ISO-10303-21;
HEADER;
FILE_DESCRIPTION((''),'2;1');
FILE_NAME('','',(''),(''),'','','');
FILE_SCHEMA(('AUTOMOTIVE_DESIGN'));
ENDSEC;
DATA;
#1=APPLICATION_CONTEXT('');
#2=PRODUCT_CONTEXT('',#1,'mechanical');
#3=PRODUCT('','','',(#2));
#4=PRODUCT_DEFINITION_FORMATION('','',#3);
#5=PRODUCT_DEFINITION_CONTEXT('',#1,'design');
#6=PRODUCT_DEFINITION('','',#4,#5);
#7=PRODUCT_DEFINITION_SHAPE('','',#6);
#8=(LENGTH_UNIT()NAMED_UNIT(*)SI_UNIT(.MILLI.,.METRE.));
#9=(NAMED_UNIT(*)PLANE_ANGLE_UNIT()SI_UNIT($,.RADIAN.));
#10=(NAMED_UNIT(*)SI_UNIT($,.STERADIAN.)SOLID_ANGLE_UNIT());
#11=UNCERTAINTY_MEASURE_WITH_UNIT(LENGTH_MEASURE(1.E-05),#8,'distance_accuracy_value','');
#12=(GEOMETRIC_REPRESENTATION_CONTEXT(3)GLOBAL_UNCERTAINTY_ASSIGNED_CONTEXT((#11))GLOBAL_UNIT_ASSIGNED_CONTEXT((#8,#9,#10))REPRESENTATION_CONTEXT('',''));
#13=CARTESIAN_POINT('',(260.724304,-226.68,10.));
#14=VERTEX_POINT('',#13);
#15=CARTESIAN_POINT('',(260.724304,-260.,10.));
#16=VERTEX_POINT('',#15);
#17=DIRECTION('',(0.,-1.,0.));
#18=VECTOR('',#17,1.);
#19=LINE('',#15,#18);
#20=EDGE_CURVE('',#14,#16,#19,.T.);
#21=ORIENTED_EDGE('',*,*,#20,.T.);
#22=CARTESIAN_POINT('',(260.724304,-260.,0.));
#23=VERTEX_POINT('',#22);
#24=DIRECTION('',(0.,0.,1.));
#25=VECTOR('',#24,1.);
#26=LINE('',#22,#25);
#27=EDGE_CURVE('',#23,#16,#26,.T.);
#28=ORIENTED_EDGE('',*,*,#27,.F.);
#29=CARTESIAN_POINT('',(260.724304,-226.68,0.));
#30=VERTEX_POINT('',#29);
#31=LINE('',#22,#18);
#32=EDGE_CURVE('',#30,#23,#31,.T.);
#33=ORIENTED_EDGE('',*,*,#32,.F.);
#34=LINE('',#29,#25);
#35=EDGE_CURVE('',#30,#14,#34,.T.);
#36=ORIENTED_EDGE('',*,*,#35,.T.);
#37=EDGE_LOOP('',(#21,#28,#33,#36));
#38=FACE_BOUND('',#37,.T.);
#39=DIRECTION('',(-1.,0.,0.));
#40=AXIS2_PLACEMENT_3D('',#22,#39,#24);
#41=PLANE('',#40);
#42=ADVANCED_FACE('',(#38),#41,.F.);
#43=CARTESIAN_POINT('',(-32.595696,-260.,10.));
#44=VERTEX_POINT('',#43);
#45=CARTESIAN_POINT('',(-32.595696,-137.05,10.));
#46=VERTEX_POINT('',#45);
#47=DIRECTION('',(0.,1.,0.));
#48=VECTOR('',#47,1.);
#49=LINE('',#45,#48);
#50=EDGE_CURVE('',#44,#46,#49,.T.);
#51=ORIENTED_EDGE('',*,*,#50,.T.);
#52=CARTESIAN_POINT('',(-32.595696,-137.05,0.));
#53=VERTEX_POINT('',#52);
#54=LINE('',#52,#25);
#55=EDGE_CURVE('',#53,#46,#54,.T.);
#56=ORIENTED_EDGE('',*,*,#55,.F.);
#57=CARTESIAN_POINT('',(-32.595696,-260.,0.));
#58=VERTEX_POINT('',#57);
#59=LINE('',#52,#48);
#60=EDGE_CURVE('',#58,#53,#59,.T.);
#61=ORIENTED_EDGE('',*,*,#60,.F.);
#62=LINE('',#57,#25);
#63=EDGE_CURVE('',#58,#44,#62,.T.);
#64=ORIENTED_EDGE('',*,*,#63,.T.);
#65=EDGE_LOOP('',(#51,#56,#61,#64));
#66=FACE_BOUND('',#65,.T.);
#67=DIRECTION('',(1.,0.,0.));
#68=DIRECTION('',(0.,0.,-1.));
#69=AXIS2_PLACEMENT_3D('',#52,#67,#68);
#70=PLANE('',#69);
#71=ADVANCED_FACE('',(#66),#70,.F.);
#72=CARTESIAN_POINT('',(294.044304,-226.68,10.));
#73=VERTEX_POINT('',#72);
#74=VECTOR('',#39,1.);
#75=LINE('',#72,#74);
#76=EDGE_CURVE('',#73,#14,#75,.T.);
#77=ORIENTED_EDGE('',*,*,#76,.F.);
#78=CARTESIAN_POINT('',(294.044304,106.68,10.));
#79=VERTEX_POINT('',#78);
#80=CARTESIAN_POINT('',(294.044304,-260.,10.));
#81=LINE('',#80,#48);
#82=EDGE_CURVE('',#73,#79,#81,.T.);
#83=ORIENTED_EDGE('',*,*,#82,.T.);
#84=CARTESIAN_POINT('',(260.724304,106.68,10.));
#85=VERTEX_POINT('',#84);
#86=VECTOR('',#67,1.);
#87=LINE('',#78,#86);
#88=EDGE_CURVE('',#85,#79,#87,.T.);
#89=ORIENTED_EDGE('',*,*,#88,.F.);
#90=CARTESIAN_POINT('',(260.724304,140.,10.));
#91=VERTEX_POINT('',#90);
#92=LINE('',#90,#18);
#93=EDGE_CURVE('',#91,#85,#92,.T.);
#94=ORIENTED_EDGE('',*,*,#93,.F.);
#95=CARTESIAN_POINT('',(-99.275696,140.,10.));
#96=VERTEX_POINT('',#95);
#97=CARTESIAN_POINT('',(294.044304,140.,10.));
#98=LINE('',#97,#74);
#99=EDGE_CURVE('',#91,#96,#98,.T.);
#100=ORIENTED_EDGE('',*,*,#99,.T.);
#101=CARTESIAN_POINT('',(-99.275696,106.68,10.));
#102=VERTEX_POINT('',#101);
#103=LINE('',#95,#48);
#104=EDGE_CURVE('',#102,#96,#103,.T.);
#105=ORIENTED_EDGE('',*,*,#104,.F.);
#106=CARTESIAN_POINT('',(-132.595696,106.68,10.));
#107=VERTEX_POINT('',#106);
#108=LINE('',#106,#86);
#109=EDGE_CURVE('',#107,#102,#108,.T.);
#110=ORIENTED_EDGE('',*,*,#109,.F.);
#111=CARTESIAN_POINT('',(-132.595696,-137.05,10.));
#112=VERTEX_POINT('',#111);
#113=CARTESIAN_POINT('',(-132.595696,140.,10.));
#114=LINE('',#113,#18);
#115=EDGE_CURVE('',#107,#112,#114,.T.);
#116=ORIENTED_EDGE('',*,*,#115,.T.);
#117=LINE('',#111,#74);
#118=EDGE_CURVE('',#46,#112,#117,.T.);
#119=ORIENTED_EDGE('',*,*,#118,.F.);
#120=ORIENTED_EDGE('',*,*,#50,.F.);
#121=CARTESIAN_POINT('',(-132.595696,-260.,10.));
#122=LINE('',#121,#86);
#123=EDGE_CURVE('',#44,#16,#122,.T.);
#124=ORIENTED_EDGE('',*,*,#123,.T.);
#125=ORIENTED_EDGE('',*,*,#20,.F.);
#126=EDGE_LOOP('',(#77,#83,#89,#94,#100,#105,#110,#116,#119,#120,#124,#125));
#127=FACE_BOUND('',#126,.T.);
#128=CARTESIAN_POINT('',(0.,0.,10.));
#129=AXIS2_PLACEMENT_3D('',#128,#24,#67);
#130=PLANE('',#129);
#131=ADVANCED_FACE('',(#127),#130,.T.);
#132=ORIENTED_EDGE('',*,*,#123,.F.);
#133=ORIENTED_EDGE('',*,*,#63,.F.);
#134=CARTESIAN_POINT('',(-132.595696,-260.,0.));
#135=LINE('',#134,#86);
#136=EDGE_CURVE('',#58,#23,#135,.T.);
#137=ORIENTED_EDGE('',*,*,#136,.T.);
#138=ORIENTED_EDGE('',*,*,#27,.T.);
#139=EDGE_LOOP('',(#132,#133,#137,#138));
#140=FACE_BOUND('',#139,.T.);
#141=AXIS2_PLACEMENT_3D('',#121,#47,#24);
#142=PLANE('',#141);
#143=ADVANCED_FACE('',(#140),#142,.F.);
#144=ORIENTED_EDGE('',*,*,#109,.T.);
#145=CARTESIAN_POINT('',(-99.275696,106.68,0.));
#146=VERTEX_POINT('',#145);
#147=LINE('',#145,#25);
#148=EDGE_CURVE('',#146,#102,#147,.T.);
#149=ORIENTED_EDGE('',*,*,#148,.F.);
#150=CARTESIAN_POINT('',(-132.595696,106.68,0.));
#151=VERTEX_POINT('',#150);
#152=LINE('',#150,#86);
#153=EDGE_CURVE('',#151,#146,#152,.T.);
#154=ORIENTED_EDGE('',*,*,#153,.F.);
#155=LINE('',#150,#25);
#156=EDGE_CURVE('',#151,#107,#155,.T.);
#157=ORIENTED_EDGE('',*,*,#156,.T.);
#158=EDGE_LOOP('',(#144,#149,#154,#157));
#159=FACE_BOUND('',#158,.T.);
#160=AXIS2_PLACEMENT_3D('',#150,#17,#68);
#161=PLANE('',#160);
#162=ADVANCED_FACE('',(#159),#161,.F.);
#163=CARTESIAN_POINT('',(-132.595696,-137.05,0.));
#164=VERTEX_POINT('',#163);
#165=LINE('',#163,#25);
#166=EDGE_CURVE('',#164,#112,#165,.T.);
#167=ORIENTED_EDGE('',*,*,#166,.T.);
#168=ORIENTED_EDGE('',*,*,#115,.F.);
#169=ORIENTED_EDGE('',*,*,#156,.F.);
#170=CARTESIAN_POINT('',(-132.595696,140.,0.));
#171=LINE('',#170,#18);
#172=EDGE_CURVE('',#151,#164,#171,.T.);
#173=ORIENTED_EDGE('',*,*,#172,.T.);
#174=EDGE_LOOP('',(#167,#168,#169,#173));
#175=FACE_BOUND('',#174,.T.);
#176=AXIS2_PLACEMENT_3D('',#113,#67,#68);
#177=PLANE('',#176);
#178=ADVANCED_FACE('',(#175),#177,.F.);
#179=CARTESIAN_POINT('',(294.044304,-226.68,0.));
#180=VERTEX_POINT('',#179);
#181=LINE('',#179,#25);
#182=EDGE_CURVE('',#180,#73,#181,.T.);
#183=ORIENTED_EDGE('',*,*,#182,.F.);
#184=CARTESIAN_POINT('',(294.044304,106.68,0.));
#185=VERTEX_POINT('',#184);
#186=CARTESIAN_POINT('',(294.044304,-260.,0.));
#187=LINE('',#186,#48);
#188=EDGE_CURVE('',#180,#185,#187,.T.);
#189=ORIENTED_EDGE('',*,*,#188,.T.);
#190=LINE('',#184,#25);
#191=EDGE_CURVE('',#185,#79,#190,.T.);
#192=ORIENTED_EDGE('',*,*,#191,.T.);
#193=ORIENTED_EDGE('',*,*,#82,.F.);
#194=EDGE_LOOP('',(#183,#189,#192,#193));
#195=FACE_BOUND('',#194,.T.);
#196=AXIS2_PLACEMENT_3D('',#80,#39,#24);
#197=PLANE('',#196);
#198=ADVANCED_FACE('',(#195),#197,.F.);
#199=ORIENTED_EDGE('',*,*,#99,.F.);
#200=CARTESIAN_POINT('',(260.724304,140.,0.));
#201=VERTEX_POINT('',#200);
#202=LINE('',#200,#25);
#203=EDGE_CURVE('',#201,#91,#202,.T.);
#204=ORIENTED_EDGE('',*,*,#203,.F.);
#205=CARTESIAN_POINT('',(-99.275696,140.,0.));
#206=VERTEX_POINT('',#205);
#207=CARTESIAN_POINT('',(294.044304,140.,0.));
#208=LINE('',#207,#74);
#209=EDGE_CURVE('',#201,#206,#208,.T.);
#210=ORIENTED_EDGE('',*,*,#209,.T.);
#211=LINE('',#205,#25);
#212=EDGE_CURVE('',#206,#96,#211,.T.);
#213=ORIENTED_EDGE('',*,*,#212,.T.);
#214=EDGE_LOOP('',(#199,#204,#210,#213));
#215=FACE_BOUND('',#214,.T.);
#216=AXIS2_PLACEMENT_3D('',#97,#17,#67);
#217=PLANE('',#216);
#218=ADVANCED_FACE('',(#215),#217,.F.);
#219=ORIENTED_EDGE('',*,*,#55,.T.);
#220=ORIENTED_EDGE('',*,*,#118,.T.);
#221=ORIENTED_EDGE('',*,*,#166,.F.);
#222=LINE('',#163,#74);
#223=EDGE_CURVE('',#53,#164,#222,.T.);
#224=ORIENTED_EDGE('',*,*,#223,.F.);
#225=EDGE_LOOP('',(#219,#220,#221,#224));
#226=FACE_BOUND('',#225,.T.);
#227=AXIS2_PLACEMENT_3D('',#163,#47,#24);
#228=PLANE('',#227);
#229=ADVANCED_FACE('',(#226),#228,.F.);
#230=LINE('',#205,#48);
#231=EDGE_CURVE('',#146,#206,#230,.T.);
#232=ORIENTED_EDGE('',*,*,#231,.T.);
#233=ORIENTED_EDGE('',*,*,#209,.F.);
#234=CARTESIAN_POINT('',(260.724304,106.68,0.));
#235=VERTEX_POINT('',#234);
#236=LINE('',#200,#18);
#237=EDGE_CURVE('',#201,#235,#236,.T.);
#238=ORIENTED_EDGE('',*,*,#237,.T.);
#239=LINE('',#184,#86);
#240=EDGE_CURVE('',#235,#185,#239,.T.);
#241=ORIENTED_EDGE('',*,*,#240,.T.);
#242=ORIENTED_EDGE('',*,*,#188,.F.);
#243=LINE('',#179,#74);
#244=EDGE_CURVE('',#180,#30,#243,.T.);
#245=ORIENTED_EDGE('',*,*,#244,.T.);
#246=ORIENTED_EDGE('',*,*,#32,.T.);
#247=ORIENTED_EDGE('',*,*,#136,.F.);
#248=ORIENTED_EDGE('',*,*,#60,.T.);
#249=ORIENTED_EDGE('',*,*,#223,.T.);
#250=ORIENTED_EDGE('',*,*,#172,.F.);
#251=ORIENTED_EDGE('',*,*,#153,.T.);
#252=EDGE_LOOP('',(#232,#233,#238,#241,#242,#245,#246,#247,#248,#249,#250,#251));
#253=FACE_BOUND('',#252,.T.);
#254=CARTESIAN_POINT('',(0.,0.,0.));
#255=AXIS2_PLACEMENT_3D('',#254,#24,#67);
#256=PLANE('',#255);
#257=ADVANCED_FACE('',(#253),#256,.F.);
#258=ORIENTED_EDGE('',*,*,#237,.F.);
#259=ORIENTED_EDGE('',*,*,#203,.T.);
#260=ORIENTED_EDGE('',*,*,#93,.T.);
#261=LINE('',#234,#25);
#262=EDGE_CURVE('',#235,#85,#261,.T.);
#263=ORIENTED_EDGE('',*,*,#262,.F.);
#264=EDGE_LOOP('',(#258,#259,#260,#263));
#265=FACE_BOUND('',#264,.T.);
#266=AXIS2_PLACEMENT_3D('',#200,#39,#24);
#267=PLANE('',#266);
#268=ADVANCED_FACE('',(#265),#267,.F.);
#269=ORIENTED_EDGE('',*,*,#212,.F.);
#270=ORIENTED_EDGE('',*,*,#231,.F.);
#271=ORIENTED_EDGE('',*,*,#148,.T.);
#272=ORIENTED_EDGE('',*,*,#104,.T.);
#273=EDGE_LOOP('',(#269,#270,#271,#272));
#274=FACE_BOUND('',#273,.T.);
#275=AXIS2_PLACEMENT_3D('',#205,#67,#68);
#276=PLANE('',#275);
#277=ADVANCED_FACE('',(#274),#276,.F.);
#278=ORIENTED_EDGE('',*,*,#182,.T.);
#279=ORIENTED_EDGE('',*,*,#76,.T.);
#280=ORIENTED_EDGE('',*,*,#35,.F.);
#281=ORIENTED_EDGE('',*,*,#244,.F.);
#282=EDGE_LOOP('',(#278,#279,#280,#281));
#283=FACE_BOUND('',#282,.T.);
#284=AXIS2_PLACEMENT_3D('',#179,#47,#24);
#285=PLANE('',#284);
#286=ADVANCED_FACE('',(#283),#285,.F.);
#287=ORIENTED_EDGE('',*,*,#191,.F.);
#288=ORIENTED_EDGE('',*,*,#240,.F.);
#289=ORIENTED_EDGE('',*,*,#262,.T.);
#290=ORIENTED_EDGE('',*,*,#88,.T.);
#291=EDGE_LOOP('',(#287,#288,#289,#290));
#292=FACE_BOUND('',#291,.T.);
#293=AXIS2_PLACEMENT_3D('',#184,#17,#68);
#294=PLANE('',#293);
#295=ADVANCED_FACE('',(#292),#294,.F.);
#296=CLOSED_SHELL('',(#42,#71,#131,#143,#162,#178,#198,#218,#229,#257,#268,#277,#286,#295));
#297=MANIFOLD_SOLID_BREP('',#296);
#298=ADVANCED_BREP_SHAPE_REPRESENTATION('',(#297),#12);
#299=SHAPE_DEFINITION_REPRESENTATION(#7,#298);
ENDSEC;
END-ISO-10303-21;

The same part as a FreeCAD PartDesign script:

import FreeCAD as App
import Part
import Sketcher
from FreeCAD import Vector
Q = App.Units.Quantity


def add_polygon(sketch, points):
    """Adds a closed chain of lines whose ends are joined by coincident constraints."""
    first, n = sketch.GeometryCount, len(points)
    for a, b in zip(points, points[1:] + points[:1]):
        sketch.addGeometry(Part.LineSegment(App.Vector(*a, 0), App.Vector(*b, 0)), False)
    for i in range(n):
        sketch.addConstraint(Sketcher.Constraint("Coincident", first + i, 2, first + (i + 1) % n, 1))

doc = App.newDocument("Part")
body = doc.addObject("PartDesign::Body", "Body")

# Sketch on XY plane
sketch1 = body.newObject("Sketcher::SketchObject", "Sketch")
sketch1.AttachmentSupport = (doc.getObject("XY_Plane"), [""])
sketch1.MapMode = "FlatFace"
add_polygon(sketch1, [(-133, 140), (-133, -260), (294, -260), (294, 140)])  # lines 0-3
sketch1.addConstraint([
    Sketcher.Constraint("Vertical", 0),
    Sketcher.Constraint("Horizontal", 1),
    Sketcher.Constraint("Vertical", 2),
    Sketcher.Constraint("Horizontal", 3),
    Sketcher.Constraint("DistanceY", 0, 2, 0, 1, Q("400 mm")),
    Sketcher.Constraint("DistanceY", 0, 2, -1, 1, Q("260 mm")),
    Sketcher.Constraint("DistanceX", 1, 1, 1, 2, Q("426.64 mm")),
    Sketcher.Constraint("DistanceX", 0, 2, -1, 1, Q("132.595696 mm")),
])
pad1 = body.newObject("PartDesign::Pad", "Pad")
pad1.Profile = sketch1
pad1.Length = 10

# Sketch on XY plane
sketch2 = body.newObject("Sketcher::SketchObject", "Sketch001")
sketch2.AttachmentSupport = (doc.getObject("XY_Plane"), [""])
sketch2.MapMode = "FlatFace"
sketch2.AttachmentOffset = App.Placement(Vector(0, 0, 10), App.Rotation())
add_polygon(sketch2, [(-133, -227), (-133, -260), (-99, -260), (-99, -227)])  # lines 0-3
add_polygon(sketch2, [(-133, 140), (-133, 107), (-99, 107), (-99, 140)])  # lines 4-7
add_polygon(sketch2, [(261, 140), (261, 107), (294, 107), (294, 140)])  # lines 8-11
add_polygon(sketch2, [(261, -227), (261, -260), (294, -260), (294, -227)])  # lines 12-15
sketch2.addConstraint([
    Sketcher.Constraint("Vertical", 0),
    Sketcher.Constraint("Horizontal", 1),
    Sketcher.Constraint("Vertical", 2),
    Sketcher.Constraint("Horizontal", 3),
    Sketcher.Constraint("Vertical", 4),
    Sketcher.Constraint("Horizontal", 5),
    Sketcher.Constraint("Vertical", 6),
    Sketcher.Constraint("Horizontal", 7),
    Sketcher.Constraint("Vertical", 8),
    Sketcher.Constraint("Horizontal", 9),
    Sketcher.Constraint("Vertical", 10),
    Sketcher.Constraint("Horizontal", 11),
    Sketcher.Constraint("Vertical", 12),
    Sketcher.Constraint("Horizontal", 13),
    Sketcher.Constraint("Vertical", 14),
    Sketcher.Constraint("Horizontal", 15),
    Sketcher.Constraint("Horizontal", 5, 2, 8, 2),
    Sketcher.Constraint("Horizontal", 7, 2, 10, 2),
    Sketcher.Constraint("Horizontal", 1, 2, 12, 2),
    Sketcher.Constraint("Horizontal", 3, 2, 14, 2),
    Sketcher.Constraint("Vertical", 3, 2, 4, 2),
    Sketcher.Constraint("Vertical", 2, 2, 5, 2),
    Sketcher.Constraint("Vertical", 11, 2, 12, 2),
    Sketcher.Constraint("Vertical", 10, 2, 13, 2),
    Sketcher.Constraint("Equal", 7, 9),
    Sketcher.Constraint("Equal", 15, 0),
    Sketcher.Constraint("Equal", 2, 4),
    Sketcher.Constraint("DistanceY", 0, 2, -1, 1, Q("260 mm")),
    Sketcher.Constraint("DistanceY", -1, 1, 6, 2, Q("140 mm")),
    Sketcher.Constraint("DistanceX", 5, 2, 8, 2, Q("360 mm")),
    Sketcher.Constraint("DistanceX", 1, 1, 1, 2, Q("33.32 mm")),
    Sketcher.Constraint("DistanceX", 0, 2, -1, 1, Q("132.595696 mm")),
])
pocket1 = body.newObject("PartDesign::Pocket", "Pocket")
pocket1.Profile = sketch2
pocket1.Type = "ThroughAll"

# Sketch on XY plane
sketch3 = body.newObject("Sketcher::SketchObject", "Sketch002")
sketch3.AttachmentSupport = (doc.getObject("XY_Plane"), [""])
sketch3.MapMode = "FlatFace"
sketch3.AttachmentOffset = App.Placement(Vector(0, 0, 10), App.Rotation())
add_polygon(sketch3, [(-133, -137), (-133, -227), (-99, -227), (-99, -260), (-33, -260), (-33, -137)])  # lines 0-5
sketch3.addConstraint([
    Sketcher.Constraint("Vertical", 0),
    Sketcher.Constraint("Horizontal", 1),
    Sketcher.Constraint("Vertical", 2),
    Sketcher.Constraint("Horizontal", 3),
    Sketcher.Constraint("Vertical", 4),
    Sketcher.Constraint("Horizontal", 5),
    Sketcher.Constraint("Equal", 1, 2),
    Sketcher.Constraint("DistanceX", 5, 2, 5, 1, Q("100 mm")),
    Sketcher.Constraint("DistanceY", 2, 2, -1, 1, Q("260 mm")),
    Sketcher.Constraint("DistanceX", 1, 1, 1, 2, Q("33.32 mm")),
    Sketcher.Constraint("DistanceY", 0, 2, 0, 1, Q("89.63 mm")),
    Sketcher.Constraint("DistanceX", 0, 2, -1, 1, Q("132.595696 mm")),
])
pocket2 = body.newObject("PartDesign::Pocket", "Pocket001")
pocket2.Profile = sketch3
pocket2.Type = "ThroughAll"

doc.recompute()
